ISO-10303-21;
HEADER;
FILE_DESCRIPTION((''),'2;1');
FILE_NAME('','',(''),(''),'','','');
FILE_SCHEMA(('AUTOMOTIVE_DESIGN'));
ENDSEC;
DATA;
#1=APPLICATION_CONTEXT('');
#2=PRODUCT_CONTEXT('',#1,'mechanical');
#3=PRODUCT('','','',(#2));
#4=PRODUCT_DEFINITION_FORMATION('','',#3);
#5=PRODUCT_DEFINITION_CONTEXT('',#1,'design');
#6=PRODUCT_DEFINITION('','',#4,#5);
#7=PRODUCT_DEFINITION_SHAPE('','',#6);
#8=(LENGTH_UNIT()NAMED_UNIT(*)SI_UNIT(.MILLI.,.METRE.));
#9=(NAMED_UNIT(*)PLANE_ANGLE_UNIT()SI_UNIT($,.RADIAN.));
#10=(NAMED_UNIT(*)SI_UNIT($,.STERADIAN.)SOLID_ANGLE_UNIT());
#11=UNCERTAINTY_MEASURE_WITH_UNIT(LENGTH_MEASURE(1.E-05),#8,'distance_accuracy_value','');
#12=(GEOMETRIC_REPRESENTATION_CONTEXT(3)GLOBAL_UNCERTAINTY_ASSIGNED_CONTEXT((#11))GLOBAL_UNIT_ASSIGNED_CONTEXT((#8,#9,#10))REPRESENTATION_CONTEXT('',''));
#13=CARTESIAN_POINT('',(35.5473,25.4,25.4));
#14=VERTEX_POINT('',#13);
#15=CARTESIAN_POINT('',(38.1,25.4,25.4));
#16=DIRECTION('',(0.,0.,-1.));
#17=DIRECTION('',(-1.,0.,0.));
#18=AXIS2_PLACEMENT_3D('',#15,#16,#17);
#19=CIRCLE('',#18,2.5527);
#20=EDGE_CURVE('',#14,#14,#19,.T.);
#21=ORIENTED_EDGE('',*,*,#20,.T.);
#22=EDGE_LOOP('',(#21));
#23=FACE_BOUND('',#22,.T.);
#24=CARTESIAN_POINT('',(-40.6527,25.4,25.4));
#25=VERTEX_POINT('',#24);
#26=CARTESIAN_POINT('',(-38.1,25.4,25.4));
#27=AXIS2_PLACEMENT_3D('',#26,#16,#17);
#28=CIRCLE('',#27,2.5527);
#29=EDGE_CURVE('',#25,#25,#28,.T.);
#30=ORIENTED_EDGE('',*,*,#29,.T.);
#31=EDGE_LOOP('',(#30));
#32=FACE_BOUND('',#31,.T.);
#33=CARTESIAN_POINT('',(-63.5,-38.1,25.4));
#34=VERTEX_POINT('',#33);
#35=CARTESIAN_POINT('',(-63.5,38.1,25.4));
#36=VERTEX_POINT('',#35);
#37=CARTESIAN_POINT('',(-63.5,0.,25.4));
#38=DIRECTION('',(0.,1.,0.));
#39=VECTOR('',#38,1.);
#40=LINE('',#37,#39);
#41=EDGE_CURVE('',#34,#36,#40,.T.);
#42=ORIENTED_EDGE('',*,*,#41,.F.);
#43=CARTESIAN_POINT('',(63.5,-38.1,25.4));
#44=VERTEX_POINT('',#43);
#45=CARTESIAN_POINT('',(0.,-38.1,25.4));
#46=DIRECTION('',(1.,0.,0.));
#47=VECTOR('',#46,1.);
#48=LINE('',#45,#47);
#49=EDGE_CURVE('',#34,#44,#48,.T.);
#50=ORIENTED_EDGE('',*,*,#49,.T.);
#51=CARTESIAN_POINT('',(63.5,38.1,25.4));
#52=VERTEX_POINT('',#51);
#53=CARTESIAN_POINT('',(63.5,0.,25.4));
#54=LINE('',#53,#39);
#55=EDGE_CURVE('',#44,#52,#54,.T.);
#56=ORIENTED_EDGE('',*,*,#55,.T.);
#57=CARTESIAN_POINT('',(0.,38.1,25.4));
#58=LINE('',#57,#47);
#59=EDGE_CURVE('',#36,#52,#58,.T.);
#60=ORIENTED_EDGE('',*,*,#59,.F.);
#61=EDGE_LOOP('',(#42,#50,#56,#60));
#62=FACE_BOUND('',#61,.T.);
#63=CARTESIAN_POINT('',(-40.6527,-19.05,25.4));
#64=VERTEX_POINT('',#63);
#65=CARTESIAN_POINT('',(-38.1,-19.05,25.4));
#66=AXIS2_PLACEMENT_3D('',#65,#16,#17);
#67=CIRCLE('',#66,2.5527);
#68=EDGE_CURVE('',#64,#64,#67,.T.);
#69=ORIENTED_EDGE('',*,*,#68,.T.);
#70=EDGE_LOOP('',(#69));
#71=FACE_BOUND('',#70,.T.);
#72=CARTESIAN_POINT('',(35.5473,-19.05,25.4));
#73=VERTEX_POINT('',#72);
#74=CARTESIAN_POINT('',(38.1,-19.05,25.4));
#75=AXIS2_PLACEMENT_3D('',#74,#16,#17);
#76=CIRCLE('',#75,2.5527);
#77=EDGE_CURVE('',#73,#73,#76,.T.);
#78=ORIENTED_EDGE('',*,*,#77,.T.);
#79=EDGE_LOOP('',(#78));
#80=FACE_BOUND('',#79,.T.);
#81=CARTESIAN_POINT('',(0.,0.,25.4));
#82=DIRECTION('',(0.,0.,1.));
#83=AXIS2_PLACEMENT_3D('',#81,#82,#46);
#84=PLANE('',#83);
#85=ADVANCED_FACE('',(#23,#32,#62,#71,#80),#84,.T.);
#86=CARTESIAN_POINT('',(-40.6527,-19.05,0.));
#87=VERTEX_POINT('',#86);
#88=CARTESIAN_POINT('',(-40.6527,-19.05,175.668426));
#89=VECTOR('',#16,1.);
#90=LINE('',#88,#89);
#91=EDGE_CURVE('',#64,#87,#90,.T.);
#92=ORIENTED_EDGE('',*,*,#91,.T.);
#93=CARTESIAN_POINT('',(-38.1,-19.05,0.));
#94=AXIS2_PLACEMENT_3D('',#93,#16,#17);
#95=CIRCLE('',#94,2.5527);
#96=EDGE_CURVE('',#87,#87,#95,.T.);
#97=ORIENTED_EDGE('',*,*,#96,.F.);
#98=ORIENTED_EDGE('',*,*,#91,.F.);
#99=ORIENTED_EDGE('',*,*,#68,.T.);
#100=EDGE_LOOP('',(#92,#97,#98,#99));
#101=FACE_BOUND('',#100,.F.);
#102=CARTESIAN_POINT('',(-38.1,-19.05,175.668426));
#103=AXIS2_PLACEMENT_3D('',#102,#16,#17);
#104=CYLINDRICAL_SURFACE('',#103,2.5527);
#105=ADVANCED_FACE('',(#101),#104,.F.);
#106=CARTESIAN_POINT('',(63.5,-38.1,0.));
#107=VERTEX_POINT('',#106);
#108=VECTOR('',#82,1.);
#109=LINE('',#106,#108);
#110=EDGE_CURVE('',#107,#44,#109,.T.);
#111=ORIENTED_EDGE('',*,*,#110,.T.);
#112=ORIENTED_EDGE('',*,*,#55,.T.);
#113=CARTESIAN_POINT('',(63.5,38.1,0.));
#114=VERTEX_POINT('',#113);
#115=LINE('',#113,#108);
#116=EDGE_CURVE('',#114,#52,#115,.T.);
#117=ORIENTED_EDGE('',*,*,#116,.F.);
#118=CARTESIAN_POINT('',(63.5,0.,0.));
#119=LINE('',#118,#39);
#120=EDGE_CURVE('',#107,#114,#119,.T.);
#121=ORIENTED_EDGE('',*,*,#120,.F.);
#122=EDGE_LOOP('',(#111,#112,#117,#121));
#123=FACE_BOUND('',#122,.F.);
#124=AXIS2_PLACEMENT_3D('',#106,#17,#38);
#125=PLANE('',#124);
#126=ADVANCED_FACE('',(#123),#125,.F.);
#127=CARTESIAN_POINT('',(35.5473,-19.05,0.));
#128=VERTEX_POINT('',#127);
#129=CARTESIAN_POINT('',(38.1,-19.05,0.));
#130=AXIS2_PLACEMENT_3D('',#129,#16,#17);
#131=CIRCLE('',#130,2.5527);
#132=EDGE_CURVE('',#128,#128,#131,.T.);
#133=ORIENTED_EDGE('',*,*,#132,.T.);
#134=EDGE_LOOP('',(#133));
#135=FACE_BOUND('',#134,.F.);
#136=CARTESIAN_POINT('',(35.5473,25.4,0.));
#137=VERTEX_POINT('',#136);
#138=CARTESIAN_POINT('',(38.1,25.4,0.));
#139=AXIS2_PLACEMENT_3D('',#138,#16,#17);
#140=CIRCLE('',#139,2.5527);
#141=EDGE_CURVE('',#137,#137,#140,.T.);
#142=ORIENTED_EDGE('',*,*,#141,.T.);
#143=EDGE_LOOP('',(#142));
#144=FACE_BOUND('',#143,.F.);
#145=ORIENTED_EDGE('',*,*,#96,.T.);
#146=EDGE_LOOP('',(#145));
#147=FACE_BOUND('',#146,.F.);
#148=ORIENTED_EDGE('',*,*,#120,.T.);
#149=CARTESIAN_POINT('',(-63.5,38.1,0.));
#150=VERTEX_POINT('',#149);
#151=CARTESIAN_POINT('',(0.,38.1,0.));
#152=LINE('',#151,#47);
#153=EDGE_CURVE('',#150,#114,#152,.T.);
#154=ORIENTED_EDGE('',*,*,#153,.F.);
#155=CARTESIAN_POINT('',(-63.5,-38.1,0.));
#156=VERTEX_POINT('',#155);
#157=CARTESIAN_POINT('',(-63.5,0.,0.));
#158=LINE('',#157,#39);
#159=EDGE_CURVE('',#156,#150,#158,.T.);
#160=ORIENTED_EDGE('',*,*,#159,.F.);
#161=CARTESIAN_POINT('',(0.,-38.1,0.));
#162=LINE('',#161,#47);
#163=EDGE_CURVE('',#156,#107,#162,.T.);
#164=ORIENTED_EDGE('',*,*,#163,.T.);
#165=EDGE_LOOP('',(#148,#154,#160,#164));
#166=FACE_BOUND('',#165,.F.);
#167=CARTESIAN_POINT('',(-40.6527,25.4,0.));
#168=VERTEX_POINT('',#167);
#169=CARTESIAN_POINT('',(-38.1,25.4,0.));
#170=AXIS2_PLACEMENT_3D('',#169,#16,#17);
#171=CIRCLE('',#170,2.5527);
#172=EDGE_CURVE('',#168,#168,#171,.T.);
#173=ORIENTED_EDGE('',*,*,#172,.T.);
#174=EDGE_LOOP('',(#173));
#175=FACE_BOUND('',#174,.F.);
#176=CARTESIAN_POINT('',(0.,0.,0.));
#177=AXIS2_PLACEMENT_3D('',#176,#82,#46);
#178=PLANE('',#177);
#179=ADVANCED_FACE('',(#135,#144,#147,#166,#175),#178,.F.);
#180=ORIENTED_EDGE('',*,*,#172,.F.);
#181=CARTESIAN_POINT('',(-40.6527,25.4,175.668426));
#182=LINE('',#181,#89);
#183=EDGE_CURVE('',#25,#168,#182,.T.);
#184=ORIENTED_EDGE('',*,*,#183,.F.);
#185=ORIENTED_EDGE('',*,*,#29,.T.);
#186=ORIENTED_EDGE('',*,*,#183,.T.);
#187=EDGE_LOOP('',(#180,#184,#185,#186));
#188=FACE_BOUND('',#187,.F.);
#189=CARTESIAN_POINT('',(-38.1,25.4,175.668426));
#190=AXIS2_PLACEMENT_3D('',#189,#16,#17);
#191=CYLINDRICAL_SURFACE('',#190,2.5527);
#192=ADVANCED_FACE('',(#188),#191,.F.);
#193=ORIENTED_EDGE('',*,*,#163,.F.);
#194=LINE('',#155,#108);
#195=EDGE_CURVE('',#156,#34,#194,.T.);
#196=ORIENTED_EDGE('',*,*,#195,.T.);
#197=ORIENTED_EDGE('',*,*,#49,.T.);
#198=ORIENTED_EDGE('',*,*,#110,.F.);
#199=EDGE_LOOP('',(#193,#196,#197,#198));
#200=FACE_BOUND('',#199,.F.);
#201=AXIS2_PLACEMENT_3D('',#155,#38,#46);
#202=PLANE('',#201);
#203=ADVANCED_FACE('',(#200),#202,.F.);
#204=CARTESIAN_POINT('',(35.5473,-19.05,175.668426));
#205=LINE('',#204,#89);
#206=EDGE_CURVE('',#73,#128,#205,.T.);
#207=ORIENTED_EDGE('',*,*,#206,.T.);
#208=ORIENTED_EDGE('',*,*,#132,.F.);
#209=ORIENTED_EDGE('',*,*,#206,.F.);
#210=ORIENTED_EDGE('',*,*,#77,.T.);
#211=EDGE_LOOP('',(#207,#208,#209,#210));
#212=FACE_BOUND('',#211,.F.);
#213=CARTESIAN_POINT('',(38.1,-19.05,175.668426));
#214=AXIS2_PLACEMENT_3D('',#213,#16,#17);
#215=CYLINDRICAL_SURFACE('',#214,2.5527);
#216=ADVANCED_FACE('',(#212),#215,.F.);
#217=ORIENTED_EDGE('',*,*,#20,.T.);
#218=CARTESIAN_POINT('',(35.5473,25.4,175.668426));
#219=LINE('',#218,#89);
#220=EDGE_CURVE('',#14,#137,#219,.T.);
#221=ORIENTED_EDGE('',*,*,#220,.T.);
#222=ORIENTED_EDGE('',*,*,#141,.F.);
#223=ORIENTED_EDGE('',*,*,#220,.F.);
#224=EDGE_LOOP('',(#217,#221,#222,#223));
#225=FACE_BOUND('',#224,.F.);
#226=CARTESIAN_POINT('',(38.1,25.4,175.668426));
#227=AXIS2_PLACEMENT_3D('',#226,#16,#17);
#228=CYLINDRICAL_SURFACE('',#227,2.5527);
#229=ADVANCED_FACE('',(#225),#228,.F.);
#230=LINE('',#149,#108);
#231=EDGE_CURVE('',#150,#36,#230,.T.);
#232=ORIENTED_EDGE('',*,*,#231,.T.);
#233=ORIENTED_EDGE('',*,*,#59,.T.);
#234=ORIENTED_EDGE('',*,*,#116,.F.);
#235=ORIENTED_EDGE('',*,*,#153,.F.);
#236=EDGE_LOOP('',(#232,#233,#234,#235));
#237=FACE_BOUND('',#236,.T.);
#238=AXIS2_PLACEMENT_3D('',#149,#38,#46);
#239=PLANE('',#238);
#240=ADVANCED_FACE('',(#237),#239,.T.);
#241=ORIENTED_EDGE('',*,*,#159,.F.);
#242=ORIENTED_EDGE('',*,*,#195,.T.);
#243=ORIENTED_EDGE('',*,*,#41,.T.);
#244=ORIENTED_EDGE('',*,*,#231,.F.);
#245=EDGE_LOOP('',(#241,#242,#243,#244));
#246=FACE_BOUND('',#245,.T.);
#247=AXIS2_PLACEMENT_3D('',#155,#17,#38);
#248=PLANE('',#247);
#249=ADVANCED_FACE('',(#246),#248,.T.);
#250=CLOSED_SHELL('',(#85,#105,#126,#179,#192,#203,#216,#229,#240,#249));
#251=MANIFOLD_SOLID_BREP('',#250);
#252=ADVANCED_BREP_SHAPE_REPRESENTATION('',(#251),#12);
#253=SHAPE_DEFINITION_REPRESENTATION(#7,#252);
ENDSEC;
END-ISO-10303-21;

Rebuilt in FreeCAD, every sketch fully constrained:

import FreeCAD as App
import Part
import Sketcher

V = App.Vector
Q = App.Units.Quantity

doc = App.newDocument("Part")
body = doc.addObject("PartDesign::Body", "Body")

# Sketch on XY plane
sketch1 = body.newObject("Sketcher::SketchObject", "Sketch")
sketch1.AttachmentSupport = (doc.getObject("XY_Plane"), [""])
sketch1.MapMode = "FlatFace"
sketch1.addGeometry([
    Part.LineSegment(V(-64, 38, 0), V(-64, -38, 0)),
    Part.LineSegment(V(-64, -38, 0), V(64, -38, 0)),
    Part.LineSegment(V(64, -38, 0), V(64, 38, 0)),
    Part.LineSegment(V(64, 38, 0), V(-64, 38, 0)),
], False)
sketch1.addConstraint([
    Sketcher.Constraint("Coincident", 0, 2, 1, 1),
    Sketcher.Constraint("Coincident", 1, 2, 2, 1),
    Sketcher.Constraint("Coincident", 2, 2, 3, 1),
    Sketcher.Constraint("Coincident", 3, 2, 0, 1),
    Sketcher.Constraint("Vertical", 0),
    Sketcher.Constraint("Horizontal", 1),
    Sketcher.Constraint("Vertical", 2),
    Sketcher.Constraint("Horizontal", 3),
    Sketcher.Constraint("Symmetric", 0, 2, 2, 2, -1, 1),
    Sketcher.Constraint("DistanceX", 1, 1, 1, 2, Q("5 in")),
    Sketcher.Constraint("DistanceY", 0, 2, 0, 1, Q("3 in")),
])
pad1 = body.newObject("PartDesign::Pad", "Pad")
pad1.Profile = sketch1
pad1.Length = Q("1 in")

# Sketch on XY plane
sketch2 = body.newObject("Sketcher::SketchObject", "Sketch001")
sketch2.AttachmentSupport = (doc.getObject("XY_Plane"), [""])
sketch2.MapMode = "FlatFace"
sketch2.AttachmentOffset = App.Placement(V(0, 0, 1 * 25.4), App.Rotation())
sketch2.addGeometry([
    Part.Circle(V(-38.1, 25.4, 0), V(0, 0, 1), 2.6),
    Part.Circle(V(-38.1, -19.1, 0), V(0, 0, 1), 2.6),
    Part.Circle(V(38.1, 25.4, 0), V(0, 0, 1), 2.6),
    Part.Circle(V(38.1, -19.1, 0), V(0, 0, 1), 2.6),
], False)
sketch2.addConstraint([
    Sketcher.Constraint("Equal", 0, 1),
    Sketcher.Constraint("Equal", 1, 2),
    Sketcher.Constraint("Equal", 2, 3),
    Sketcher.Constraint("Symmetric", 0, 3, 2, 3, -2),
    Sketcher.Constraint("Symmetric", 1, 3, 3, 3, -2),
    Sketcher.Constraint("Vertical", 0, 3, 1, 3),
    Sketcher.Constraint("Diameter", 0, Q("0.201 in")),
    Sketcher.Constraint("DistanceY", -1, 1, 0, 3, Q("1 in")),
    Sketcher.Constraint("DistanceX", 0, 3, 2, 3, Q("3 in")),
    Sketcher.Constraint("DistanceY", 1, 3, -1, 1, Q("0.75 in")),
])
doc.recompute()
hole = body.newObject("PartDesign::Hole", "Hole")
hole.Profile = sketch2
hole.ThreadType = "None"
hole.Diameter = Q("0.201 in")
hole.DepthType = "ThroughAll"

doc.recompute()
